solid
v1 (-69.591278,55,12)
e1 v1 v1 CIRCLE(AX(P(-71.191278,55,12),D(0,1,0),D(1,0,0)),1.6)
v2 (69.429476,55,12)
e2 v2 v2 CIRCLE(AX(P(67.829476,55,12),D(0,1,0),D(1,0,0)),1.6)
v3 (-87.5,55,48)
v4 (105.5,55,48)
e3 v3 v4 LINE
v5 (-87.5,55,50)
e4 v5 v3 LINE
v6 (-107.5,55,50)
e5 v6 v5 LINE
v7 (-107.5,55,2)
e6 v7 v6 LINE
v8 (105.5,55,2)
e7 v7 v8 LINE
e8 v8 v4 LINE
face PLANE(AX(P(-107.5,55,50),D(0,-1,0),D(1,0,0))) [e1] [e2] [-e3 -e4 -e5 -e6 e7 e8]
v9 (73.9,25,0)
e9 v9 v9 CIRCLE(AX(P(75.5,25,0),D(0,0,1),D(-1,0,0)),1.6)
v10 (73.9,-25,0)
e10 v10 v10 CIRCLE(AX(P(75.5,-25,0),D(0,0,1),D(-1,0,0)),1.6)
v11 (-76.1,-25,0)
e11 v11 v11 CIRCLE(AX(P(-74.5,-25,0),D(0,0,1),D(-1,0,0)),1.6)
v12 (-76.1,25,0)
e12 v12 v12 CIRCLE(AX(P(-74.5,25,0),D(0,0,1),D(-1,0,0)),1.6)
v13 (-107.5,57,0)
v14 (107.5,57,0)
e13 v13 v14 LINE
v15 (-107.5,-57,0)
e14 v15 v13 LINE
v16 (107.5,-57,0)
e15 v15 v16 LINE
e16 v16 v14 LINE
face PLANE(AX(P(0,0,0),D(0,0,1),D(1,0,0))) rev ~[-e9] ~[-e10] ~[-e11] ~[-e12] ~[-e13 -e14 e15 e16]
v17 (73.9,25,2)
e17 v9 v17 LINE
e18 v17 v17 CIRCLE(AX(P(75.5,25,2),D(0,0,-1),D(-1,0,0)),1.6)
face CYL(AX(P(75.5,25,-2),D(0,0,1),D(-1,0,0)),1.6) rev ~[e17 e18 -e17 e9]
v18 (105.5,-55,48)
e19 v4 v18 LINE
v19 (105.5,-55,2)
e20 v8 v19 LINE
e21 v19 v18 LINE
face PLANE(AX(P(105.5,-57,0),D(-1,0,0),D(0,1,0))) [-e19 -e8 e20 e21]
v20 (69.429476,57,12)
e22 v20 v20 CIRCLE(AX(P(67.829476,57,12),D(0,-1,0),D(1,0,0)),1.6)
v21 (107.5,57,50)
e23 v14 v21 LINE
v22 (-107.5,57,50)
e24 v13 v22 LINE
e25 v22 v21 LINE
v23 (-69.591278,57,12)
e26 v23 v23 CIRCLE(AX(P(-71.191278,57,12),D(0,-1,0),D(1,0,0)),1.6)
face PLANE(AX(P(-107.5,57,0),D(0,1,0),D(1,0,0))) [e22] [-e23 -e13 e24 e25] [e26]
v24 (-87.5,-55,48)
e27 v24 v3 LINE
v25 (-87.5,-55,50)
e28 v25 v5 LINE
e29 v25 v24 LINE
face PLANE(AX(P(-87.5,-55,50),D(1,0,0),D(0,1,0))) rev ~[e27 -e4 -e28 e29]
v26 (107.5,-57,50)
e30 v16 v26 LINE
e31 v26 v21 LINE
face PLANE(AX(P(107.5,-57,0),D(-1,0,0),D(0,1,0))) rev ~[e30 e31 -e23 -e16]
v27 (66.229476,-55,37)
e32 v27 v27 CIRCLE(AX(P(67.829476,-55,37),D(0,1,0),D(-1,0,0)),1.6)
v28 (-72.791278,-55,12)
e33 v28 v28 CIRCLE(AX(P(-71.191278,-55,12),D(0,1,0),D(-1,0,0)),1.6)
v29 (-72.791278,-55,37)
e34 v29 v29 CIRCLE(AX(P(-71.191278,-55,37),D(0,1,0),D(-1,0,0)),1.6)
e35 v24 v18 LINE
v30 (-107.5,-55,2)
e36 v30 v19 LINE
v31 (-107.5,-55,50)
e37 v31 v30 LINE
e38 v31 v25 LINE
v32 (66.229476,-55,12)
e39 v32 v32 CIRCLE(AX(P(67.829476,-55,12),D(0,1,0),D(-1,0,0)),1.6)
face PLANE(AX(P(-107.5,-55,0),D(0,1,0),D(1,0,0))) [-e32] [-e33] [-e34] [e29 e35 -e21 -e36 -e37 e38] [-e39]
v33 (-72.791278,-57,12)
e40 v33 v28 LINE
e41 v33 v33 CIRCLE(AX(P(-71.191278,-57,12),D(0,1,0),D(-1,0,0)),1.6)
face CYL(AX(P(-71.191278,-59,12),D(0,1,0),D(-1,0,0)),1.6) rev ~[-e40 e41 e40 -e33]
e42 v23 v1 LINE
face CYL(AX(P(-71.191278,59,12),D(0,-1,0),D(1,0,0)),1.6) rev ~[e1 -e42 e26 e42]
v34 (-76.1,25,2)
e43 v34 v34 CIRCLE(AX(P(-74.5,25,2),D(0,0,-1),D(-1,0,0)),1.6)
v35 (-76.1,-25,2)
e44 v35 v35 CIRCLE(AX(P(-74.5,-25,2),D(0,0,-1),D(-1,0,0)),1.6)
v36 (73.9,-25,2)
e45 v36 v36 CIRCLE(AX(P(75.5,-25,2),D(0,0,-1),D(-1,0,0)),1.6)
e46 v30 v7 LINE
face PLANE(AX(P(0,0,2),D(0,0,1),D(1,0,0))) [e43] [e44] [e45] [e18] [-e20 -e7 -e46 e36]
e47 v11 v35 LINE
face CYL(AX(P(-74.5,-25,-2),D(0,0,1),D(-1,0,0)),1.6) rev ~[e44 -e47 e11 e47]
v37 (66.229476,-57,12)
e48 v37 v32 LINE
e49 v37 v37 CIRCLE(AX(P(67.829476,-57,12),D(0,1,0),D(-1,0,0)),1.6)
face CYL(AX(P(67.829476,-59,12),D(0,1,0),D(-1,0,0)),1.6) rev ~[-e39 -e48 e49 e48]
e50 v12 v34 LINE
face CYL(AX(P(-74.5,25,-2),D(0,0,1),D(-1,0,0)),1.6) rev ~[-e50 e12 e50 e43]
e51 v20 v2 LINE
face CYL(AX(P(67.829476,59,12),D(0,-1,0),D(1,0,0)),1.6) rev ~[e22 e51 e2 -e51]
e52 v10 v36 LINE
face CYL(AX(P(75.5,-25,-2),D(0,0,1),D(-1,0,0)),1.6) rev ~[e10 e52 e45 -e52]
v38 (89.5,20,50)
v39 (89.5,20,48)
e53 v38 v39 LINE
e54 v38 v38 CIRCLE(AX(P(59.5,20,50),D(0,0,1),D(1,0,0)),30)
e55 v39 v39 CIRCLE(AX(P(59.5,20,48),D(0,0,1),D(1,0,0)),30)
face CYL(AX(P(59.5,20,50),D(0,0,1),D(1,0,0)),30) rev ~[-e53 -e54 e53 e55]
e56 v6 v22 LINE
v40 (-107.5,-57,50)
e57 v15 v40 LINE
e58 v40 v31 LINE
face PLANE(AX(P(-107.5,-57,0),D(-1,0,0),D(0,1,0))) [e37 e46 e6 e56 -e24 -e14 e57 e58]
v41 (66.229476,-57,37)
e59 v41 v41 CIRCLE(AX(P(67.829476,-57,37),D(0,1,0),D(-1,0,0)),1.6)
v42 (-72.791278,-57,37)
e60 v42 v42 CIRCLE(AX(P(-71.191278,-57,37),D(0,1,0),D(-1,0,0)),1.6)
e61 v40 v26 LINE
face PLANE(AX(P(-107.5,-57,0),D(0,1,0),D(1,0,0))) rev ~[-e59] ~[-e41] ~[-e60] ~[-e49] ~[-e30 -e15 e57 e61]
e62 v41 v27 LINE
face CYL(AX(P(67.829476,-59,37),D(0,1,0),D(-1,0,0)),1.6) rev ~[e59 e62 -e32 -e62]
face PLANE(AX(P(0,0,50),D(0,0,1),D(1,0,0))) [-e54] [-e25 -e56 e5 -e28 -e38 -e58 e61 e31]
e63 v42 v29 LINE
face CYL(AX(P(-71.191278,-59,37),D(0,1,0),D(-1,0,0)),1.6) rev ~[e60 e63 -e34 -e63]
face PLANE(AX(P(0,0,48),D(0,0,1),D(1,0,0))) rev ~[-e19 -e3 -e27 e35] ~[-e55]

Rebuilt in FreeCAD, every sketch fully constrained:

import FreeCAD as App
import Part
import Sketcher
from FreeCAD import Vector


def faces_at(feature, points):
    """Names of the faces that lie closest to the given points."""
    faces = feature.Shape.Faces
    near = lambda p: min(range(len(faces)), key=lambda i: faces[i].distToShape(Part.Vertex(*p))[0])
    return sorted({f"Face{near(p) + 1}" for p in points})

doc = App.newDocument("Part")
body = doc.addObject("PartDesign::Body", "Body")

# Sketch on XY plane
sketch1 = body.newObject("Sketcher::SketchObject", "Sketch")
sketch1.AttachmentSupport = (doc.getObject("XY_Plane"), [""])
sketch1.MapMode = "FlatFace"
sketch1.addGeometry(Part.LineSegment(Vector(-108, 57, 0), Vector(-108, -57, 0)), False)
sketch1.addGeometry(Part.LineSegment(Vector(-108, -57, 0), Vector(108, -57, 0)), False)
sketch1.addGeometry(Part.LineSegment(Vector(108, -57, 0), Vector(108, 57, 0)), False)
sketch1.addGeometry(Part.LineSegment(Vector(108, 57, 0), Vector(-108, 57, 0)), False)
sketch1.addConstraint(Sketcher.Constraint("Coincident", 0, 2, 1, 1))
sketch1.addConstraint(Sketcher.Constraint("Coincident", 1, 2, 2, 1))
sketch1.addConstraint(Sketcher.Constraint("Coincident", 2, 2, 3, 1))
sketch1.addConstraint(Sketcher.Constraint("Coincident", 3, 2, 0, 1))
sketch1.addConstraint(Sketcher.Constraint("Vertical", 0))
sketch1.addConstraint(Sketcher.Constraint("Horizontal", 1))
sketch1.addConstraint(Sketcher.Constraint("Vertical", 2))
sketch1.addConstraint(Sketcher.Constraint("Horizontal", 3))
sketch1.addConstraint(Sketcher.Constraint("Symmetric", 0, 2, 2, 2, -1, 1))
sketch1.addConstraint(Sketcher.Constraint("DistanceX", 1, 1, 1, 2, 215.0))
sketch1.addConstraint(Sketcher.Constraint("DistanceY", 0, 2, 0, 1, 114.0))
pad1 = body.newObject("PartDesign::Pad", "Pad")
pad1.Profile = sketch1
pad1.Length = 50
doc.recompute()

thickness = body.newObject("PartDesign::Thickness", "Thickness")
thickness.Base = (pad1, faces_at(pad1, [(-107.5, 0, 25)]))
thickness.Value = 2
thickness.Reversed = True
thickness.Join = "Arc"

# Sketch on XY plane
sketch2 = body.newObject("Sketcher::SketchObject", "Sketch001")
sketch2.AttachmentSupport = (doc.getObject("XY_Plane"), [""])
sketch2.MapMode = "FlatFace"
sketch2.AttachmentOffset = App.Placement(Vector(0, 0, 50), App.Rotation())
sketch2.addGeometry(Part.LineSegment(Vector(-108, 55, 0), Vector(-108, -55, 0)), False)
sketch2.addGeometry(Part.LineSegment(Vector(-108, -55, 0), Vector(-88, -55, 0)), False)
sketch2.addGeometry(Part.LineSegment(Vector(-88, -55, 0), Vector(-88, 55, 0)), False)
sketch2.addGeometry(Part.LineSegment(Vector(-88, 55, 0), Vector(-108, 55, 0)), False)
sketch2.addGeometry(Part.Circle(Vector(60, 20, 0), Vector(0, 0, 1), 30), False)
sketch2.addConstraint(Sketcher.Constraint("Coincident", 0, 2, 1, 1))
sketch2.addConstraint(Sketcher.Constraint("Coincident", 1, 2, 2, 1))
sketch2.addConstraint(Sketcher.Constraint("Coincident", 2, 2, 3, 1))
sketch2.addConstraint(Sketcher.Constraint("Coincident", 3, 2, 0, 1))
sketch2.addConstraint(Sketcher.Constraint("Vertical", 0))
sketch2.addConstraint(Sketcher.Constraint("Horizontal", 1))
sketch2.addConstraint(Sketcher.Constraint("Vertical", 2))
sketch2.addConstraint(Sketcher.Constraint("Horizontal", 3))
sketch2.addConstraint(Sketcher.Constraint("Diameter", 4, 60.0))
sketch2.addConstraint(Sketcher.Constraint("DistanceX", 1, 1, 1, 2, 20.0))
sketch2.addConstraint(Sketcher.Constraint("DistanceY", 0, 2, 0, 1, 110.0))
sketch2.addConstraint(Sketcher.Constraint("DistanceY", -1, 1, 4, 3, 20.0))
sketch2.addConstraint(Sketcher.Constraint("DistanceY", 0, 2, -1, 1, 55.0))
sketch2.addConstraint(Sketcher.Constraint("DistanceX", 0, 2, 4, 3, 167.0))
sketch2.addConstraint(Sketcher.Constraint("DistanceX", -1, 1, 4, 3, 59.5))
pocket1 = body.newObject("PartDesign::Pocket", "Pocket")
pocket1.Profile = sketch2
pocket1.Length = 2

# Sketch on XY plane
sketch3 = body.newObject("Sketcher::SketchObject", "Sketch002")
sketch3.AttachmentSupport = (doc.getObject("XY_Plane"), [""])
sketch3.MapMode = "FlatFace"
sketch3.addGeometry(Part.Circle(Vector(-74.5, -25, 0), Vector(0, 0, 1), 1.6), False)
sketch3.addGeometry(Part.Circle(Vector(-74.5, 25, 0), Vector(0, 0, 1), 1.6), False)
sketch3.addGeometry(Part.Circle(Vector(75.5, 25, 0), Vector(0, 0, 1), 1.6), False)
sketch3.addGeometry(Part.Circle(Vector(75.5, -25, 0), Vector(0, 0, 1), 1.6), False)
sketch3.addConstraint(Sketcher.Constraint("Equal", 0, 1))
sketch3.addConstraint(Sketcher.Constraint("Equal", 1, 2))
sketch3.addConstraint(Sketcher.Constraint("Equal", 2, 3))
sketch3.addConstraint(Sketcher.Constraint("Symmetric", 0, 3, 1, 3, -1))
sketch3.addConstraint(Sketcher.Constraint("Symmetric", 2, 3, 3, 3, -1))
sketch3.addConstraint(Sketcher.Constraint("Horizontal", 1, 3, 2, 3))
sketch3.addConstraint(Sketcher.Constraint("Diameter", 0, 3.2))
sketch3.addConstraint(Sketcher.Constraint("DistanceY", 0, 3, -1, 1, 25.0))
sketch3.addConstraint(Sketcher.Constraint("DistanceX", 1, 3, 2, 3, 150.0))
sketch3.addConstraint(Sketcher.Constraint("DistanceX", 0, 3, -1, 1, 74.5))
doc.recompute()
hole = body.newObject("PartDesign::Hole", "Hole")
hole.Profile = sketch3
hole.ThreadType = "None"
hole.Diameter = 3.2
hole.DepthType = "Dimension"
hole.Depth = 2
hole.DrillPoint = "Angled"
hole.DrillPointAngle = 118
hole.Reversed = True

# Sketch on XZ plane
sketch4 = body.newObject("Sketcher::SketchObject", "Sketch003")
sketch4.AttachmentSupport = (doc.getObject("XZ_Plane"), [""])
sketch4.MapMode = "FlatFace"
sketch4.AttachmentOffset = App.Placement(Vector(0, 0, 57), App.Rotation())
sketch4.addGeometry(Part.Circle(Vector(-71.2, 37, 0), Vector(0, 0, 1), 1.6), False)
sketch4.addGeometry(Part.Circle(Vector(-71.2, 12, 0), Vector(0, 0, 1), 1.6), False)
sketch4.addGeometry(Part.Circle(Vector(67.8, 37, 0), Vector(0, 0, 1), 1.6), False)
sketch4.addGeometry(Part.Circle(Vector(67.8, 12, 0), Vector(0, 0, 1), 1.6), False)
sketch4.addConstraint(Sketcher.Constraint("Equal", 0, 1))
sketch4.addConstraint(Sketcher.Constraint("Equal", 1, 2))
sketch4.addConstraint(Sketcher.Constraint("Equal", 2, 3))
sketch4.addConstraint(Sketcher.Constraint("Horizontal", 0, 3, 2, 3))
sketch4.addConstraint(Sketcher.Constraint("Horizontal", 1, 3, 3, 3))
sketch4.addConstraint(Sketcher.Constraint("Vertical", 0, 3, 1, 3))
sketch4.addConstraint(Sketcher.Constraint("Vertical", 2, 3, 3, 3))
sketch4.addConstraint(Sketcher.Constraint("Diameter", 0, 3.2))
sketch4.addConstraint(Sketcher.Constraint("DistanceY", -1, 1, 0, 3, 37.0))
sketch4.addConstraint(Sketcher.Constraint("DistanceY", -1, 1, 1, 3, 12.0))
sketch4.addConstraint(Sketcher.Constraint("DistanceX", 0, 3, -1, 1, 71.191278))
sketch4.addConstraint(Sketcher.Constraint("DistanceX", -1, 1, 2, 3, 67.829476))
doc.recompute()
hole2 = body.newObject("PartDesign::Hole", "Hole001")
hole2.Profile = sketch4
hole2.ThreadType = "None"
hole2.Diameter = 3.2
hole2.DepthType = "Dimension"
hole2.Depth = 2
hole2.DrillPoint = "Angled"
hole2.DrillPointAngle = 118

# Sketch on XZ plane
sketch5 = body.newObject("Sketcher::SketchObject", "Sketch004")
sketch5.AttachmentSupport = (doc.getObject("XZ_Plane"), [""])
sketch5.MapMode = "FlatFace"
sketch5.AttachmentOffset = App.Placement(Vector(0, 0, -57), App.Rotation())
sketch5.addGeometry(Part.Circle(Vector(-71.2, 12, 0), Vector(0, 0, 1), 1.6), False)
sketch5.addGeometry(Part.Circle(Vector(67.8, 12, 0), Vector(0, 0, 1), 1.6), False)
sketch5.addConstraint(Sketcher.Constraint("Equal", 0, 1))
sketch5.addConstraint(Sketcher.Constraint("Horizontal", 0, 3, 1, 3))
sketch5.addConstraint(Sketcher.Constraint("Diameter", 0, 3.2))
sketch5.addConstraint(Sketcher.Constraint("DistanceY", -1, 1, 0, 3, 12.0))
sketch5.addConstraint(Sketcher.Constraint("DistanceX", 0, 3, -1, 1, 71.191278))
sketch5.addConstraint(Sketcher.Constraint("DistanceX", -1, 1, 1, 3, 67.829476))
doc.recompute()
hole3 = body.newObject("PartDesign::Hole", "Hole002")
hole3.Profile = sketch5
hole3.ThreadType = "None"
hole3.Diameter = 3.2
hole3.DepthType = "Dimension"
hole3.Depth = 2
hole3.DrillPoint = "Angled"
hole3.DrillPointAngle = 118
hole3.Reversed = True

doc.recompute()
